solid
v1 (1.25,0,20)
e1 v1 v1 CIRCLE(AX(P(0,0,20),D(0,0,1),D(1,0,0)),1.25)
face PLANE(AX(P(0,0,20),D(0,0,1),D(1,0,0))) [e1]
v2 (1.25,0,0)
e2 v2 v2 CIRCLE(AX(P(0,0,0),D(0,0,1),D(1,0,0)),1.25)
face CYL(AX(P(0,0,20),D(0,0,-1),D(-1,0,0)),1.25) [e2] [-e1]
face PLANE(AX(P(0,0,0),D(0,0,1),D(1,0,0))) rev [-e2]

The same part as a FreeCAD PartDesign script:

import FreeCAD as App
import Part
import Sketcher
Q = App.Units.Quantity

doc = App.newDocument("Part")
params = doc.addObject("Spreadsheet::Sheet", "Params")
for row, (alias, value) in enumerate([
    ("sketch1_diameter", "2.5 mm"),
    ("pad1_length", "20 mm"),
], start=1):
    params.set(f"A{row}", alias)
    params.set(f"B{row}", "=" + value)
    params.setAlias(f"B{row}", alias)

body = doc.addObject("PartDesign::Body", "Body")

sketch1 = body.newObject("Sketcher::SketchObject", "Sketch")
sketch1.AttachmentSupport = (doc.getObject("XY_Plane"), [""])
sketch1.MapMode = "FlatFace"
sketch1.addGeometry(Part.Circle(App.Vector(0, 0, 0), App.Vector(0, 0, 1), 1.25), False)
sketch1.addConstraint([
    Sketcher.Constraint("Coincident", 0, 3, -1, 1),
    Sketcher.Constraint("Diameter", 0, Q("2.5 mm")),
])
sketch1.setExpression("Constraints[1]", "Params.sketch1_diameter")
pad1 = body.newObject("PartDesign::Pad", "Pad")
pad1.Profile = sketch1
pad1.setExpression("Length", "Params.pad1_length")

doc.recompute()
